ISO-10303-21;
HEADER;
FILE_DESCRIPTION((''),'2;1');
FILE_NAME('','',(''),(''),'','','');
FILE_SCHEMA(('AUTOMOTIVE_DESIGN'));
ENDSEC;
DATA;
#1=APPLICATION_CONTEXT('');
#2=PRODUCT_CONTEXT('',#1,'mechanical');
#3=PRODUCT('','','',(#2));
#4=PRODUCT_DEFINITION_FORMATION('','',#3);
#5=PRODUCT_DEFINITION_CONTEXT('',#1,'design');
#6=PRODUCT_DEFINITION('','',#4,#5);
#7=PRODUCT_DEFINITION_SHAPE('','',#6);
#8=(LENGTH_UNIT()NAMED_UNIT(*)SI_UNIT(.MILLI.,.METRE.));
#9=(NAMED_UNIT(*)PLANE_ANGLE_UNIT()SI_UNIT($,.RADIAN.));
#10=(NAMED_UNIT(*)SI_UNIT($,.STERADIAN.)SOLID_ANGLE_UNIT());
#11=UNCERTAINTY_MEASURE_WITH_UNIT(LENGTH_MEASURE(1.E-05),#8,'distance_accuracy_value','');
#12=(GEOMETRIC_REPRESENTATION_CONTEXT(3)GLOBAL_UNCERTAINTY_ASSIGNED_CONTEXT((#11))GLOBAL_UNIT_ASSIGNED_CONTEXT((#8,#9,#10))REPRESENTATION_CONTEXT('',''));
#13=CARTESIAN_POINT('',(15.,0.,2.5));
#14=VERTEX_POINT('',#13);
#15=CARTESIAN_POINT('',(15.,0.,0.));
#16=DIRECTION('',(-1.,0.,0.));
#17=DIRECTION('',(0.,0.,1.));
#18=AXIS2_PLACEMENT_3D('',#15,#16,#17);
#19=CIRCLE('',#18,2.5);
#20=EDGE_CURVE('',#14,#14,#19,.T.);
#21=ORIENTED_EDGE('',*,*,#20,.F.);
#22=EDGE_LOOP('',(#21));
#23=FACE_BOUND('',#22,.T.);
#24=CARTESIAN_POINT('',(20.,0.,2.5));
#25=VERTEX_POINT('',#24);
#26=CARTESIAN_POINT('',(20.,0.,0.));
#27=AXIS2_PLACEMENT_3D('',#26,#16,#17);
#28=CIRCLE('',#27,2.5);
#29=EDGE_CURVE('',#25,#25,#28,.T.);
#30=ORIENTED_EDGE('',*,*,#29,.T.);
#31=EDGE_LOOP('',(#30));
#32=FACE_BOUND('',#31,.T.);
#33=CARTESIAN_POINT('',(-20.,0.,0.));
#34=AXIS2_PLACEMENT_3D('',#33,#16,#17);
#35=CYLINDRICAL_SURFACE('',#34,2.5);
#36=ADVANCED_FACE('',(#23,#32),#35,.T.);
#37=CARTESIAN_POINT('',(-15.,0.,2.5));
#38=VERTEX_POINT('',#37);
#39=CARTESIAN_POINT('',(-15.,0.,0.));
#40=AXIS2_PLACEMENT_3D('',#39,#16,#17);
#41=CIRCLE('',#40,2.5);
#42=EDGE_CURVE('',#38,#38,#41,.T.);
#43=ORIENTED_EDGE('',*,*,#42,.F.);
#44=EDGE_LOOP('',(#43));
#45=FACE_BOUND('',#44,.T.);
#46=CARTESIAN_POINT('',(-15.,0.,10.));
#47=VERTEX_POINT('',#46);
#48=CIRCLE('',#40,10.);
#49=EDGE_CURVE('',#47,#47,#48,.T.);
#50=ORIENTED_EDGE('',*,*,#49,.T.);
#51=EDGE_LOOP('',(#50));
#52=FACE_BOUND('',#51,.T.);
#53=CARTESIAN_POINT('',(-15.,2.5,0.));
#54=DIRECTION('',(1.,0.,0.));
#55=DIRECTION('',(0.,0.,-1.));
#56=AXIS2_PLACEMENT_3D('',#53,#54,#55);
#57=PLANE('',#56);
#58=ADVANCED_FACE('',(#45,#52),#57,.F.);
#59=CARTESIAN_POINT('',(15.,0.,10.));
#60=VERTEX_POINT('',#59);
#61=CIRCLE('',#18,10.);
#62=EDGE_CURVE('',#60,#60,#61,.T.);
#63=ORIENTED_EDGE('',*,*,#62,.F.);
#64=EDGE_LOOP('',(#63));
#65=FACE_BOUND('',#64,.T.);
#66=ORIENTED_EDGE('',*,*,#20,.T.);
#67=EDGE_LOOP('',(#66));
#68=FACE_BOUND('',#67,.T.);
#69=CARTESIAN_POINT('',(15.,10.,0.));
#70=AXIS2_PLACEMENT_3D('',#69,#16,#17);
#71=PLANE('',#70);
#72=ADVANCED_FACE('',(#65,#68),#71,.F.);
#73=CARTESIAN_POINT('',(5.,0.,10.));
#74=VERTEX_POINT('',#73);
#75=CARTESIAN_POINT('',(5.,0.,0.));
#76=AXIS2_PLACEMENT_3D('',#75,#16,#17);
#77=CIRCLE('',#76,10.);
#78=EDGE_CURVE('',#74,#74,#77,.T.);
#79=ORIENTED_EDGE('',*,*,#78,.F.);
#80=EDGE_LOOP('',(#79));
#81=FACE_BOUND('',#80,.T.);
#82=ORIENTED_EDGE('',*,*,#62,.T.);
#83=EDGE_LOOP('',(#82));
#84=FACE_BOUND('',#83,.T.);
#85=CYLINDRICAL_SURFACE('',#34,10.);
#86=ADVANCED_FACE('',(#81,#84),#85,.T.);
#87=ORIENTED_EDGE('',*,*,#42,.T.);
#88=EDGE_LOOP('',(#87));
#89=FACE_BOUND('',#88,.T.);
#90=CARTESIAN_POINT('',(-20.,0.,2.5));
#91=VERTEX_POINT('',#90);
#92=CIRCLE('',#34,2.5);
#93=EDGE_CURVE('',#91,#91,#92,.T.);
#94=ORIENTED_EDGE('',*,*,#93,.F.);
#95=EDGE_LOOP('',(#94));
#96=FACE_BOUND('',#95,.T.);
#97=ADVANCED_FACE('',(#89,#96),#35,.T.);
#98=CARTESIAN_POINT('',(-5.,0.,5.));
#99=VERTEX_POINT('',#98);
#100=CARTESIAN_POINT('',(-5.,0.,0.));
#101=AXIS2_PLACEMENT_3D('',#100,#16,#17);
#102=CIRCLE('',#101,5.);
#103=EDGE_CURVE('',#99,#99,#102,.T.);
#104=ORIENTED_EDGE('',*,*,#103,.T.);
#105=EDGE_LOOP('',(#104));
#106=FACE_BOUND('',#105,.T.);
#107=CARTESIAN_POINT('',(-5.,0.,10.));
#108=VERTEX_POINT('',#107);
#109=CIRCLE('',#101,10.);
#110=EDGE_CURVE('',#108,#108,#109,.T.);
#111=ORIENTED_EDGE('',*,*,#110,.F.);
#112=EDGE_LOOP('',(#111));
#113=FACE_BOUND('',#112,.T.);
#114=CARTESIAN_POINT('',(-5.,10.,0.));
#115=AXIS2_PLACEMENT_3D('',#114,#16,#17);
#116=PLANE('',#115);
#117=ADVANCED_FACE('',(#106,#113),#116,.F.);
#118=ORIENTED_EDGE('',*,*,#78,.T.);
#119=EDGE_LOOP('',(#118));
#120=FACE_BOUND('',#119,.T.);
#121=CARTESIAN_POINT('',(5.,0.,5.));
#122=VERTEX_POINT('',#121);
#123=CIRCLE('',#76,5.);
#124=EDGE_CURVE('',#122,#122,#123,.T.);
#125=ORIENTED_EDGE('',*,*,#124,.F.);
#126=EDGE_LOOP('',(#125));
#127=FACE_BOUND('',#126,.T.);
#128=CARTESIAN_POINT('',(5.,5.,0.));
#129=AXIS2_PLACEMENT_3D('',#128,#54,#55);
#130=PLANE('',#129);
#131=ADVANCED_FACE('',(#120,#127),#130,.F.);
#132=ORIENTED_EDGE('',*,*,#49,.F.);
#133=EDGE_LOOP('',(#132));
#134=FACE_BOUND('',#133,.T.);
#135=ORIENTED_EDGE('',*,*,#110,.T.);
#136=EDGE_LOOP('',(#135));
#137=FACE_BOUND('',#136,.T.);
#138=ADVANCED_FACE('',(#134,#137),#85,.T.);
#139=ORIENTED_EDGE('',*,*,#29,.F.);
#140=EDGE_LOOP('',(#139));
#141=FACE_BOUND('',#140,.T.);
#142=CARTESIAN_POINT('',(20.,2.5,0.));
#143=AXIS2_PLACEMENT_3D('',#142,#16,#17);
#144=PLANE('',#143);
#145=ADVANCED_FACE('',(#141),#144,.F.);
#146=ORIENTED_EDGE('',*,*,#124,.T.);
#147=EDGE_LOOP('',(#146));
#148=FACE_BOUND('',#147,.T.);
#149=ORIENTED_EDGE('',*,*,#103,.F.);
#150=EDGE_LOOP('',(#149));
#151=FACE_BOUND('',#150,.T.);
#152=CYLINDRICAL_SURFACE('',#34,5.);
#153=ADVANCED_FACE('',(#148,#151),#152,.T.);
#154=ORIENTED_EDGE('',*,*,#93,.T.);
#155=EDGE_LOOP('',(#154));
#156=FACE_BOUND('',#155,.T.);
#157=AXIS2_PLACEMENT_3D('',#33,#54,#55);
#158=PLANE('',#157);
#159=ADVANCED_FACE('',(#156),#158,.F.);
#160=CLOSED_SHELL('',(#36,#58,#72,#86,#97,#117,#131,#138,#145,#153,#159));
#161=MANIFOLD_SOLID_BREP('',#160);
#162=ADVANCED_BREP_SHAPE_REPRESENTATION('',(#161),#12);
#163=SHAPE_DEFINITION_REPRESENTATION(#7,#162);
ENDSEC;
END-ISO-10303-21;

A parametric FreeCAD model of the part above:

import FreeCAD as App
import Part
import Sketcher

V = App.Vector


def add_polygon(sketch, points):
    """Adds a closed chain of lines whose ends are joined by coincident constraints."""
    first, n = sketch.GeometryCount, len(points)
    for a, b in zip(points, points[1:] + points[:1]):
        sketch.addGeometry(Part.LineSegment(App.Vector(*a, 0), App.Vector(*b, 0)), False)
    for i in range(n):
        sketch.addConstraint(Sketcher.Constraint("Coincident", first + i, 2, first + (i + 1) % n, 1))

doc = App.newDocument("Part")
params = doc.addObject("Spreadsheet::Sheet", "Params")
for row, (alias, value) in enumerate([
    ("sketch1_width", "40 mm"),
    ("sketch1_width2", "5 mm"),
    ("sketch1_height", "2.5 mm"),
    ("sketch1_height2", "7.5 mm"),
    ("revolution_angle", "360 deg"),
], start=1):
    params.set(f"A{row}", alias)
    params.set(f"B{row}", "=" + value)
    params.setAlias(f"B{row}", alias)

body = doc.addObject("PartDesign::Body", "Body")

# Sketch on XY plane
sketch1 = doc.addObject("Sketcher::SketchObject", "Sketch")
body.addObject(sketch1)
sketch1.AttachmentSupport = (doc.XY_Plane, [""])
sketch1.MapMode = "FlatFace"
add_polygon(sketch1, [(-20, 0), (20, 0), (20, 2.5), (15, 2.5), (15, 10), (5, 10), (5, 5), (-5, 5), (-5, 10), (-15, 10), (-15, 2.5), (-20, 2.5)])  # lines 0-11
sketch1.addConstraint([
    Sketcher.Constraint("Horizontal", 0),
    Sketcher.Constraint("Vertical", 1),
    Sketcher.Constraint("Horizontal", 2),
    Sketcher.Constraint("Vertical", 3),
    Sketcher.Constraint("Horizontal", 4),
    Sketcher.Constraint("Vertical", 5),
    Sketcher.Constraint("Horizontal", 6),
    Sketcher.Constraint("Vertical", 7),
    Sketcher.Constraint("Horizontal", 8),
    Sketcher.Constraint("Vertical", 9),
    Sketcher.Constraint("Horizontal", 10),
    Sketcher.Constraint("Vertical", 11),
    Sketcher.Constraint("Symmetric", 0, 2, 11, 2, -1, 1),
    Sketcher.Constraint("Symmetric", 4, 2, 7, 2, -2),
    Sketcher.Constraint("Symmetric", 2, 2, 9, 2, -2),
    Sketcher.Constraint("Equal", 4, 6),
    Sketcher.Constraint("Equal", 10, 5),
    Sketcher.Constraint("DistanceX", 0, 1, 0, 2, 40.0),
    Sketcher.Constraint("DistanceX", 2, 2, 2, 1, 5.0),
    Sketcher.Constraint("DistanceY", 1, 1, 1, 2, 2.5),
    Sketcher.Constraint("DistanceY", 3, 1, 3, 2, 7.5),
])
sketch1.setExpression("Constraints[29]", "Params.sketch1_width")
sketch1.setExpression("Constraints[30]", "Params.sketch1_width2")
sketch1.setExpression("Constraints[31]", "Params.sketch1_height")
sketch1.setExpression("Constraints[32]", "Params.sketch1_height2")
revolution = doc.addObject("PartDesign::Revolution", "Revolution")
body.addObject(revolution)
revolution.Profile = sketch1
revolution.ReferenceAxis = (sketch1, ["H_Axis"])
revolution.setExpression("Angle", "Params.revolution_angle")

doc.recompute()
